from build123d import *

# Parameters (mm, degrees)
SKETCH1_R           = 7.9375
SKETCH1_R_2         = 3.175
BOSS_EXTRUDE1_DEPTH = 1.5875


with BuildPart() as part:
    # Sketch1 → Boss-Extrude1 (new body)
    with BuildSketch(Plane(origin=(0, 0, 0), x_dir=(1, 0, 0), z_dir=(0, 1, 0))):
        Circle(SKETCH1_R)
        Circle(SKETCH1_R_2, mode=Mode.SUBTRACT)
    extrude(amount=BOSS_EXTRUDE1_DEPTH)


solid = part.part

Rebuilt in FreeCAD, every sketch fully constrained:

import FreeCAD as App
import Part
import Sketcher
from FreeCAD import Vector
Q = App.Units.Quantity

doc = App.newDocument("Part")
body = doc.addObject("PartDesign::Body", "Body")

# Sketch on XZ plane
sketch1 = body.newObject("Sketcher::SketchObject", "Sketch")
sketch1.AttachmentSupport = (doc.getObject("XZ_Plane"), [""])
sketch1.MapMode = "FlatFace"
sketch1.addGeometry([
    Part.Circle(Vector(0, 0, 0), Vector(0, 0, 1), 7.9),
    Part.Circle(Vector(0, 0, 0), Vector(0, 0, 1), 3.2),
], False)
sketch1.addConstraint([
    Sketcher.Constraint("Coincident", 0, 3, -1, 1),
    Sketcher.Constraint("Coincident", 1, 3, -1, 1),
    Sketcher.Constraint("Diameter", 1, Q("0.25 in")),
    Sketcher.Constraint("Diameter", 0, Q("0.625 in")),
])
pad1 = body.newObject("PartDesign::Pad", "Pad")
pad1.Profile = sketch1
pad1.Length = Q("0.0625 in")
pad1.Reversed = True

doc.recompute()
